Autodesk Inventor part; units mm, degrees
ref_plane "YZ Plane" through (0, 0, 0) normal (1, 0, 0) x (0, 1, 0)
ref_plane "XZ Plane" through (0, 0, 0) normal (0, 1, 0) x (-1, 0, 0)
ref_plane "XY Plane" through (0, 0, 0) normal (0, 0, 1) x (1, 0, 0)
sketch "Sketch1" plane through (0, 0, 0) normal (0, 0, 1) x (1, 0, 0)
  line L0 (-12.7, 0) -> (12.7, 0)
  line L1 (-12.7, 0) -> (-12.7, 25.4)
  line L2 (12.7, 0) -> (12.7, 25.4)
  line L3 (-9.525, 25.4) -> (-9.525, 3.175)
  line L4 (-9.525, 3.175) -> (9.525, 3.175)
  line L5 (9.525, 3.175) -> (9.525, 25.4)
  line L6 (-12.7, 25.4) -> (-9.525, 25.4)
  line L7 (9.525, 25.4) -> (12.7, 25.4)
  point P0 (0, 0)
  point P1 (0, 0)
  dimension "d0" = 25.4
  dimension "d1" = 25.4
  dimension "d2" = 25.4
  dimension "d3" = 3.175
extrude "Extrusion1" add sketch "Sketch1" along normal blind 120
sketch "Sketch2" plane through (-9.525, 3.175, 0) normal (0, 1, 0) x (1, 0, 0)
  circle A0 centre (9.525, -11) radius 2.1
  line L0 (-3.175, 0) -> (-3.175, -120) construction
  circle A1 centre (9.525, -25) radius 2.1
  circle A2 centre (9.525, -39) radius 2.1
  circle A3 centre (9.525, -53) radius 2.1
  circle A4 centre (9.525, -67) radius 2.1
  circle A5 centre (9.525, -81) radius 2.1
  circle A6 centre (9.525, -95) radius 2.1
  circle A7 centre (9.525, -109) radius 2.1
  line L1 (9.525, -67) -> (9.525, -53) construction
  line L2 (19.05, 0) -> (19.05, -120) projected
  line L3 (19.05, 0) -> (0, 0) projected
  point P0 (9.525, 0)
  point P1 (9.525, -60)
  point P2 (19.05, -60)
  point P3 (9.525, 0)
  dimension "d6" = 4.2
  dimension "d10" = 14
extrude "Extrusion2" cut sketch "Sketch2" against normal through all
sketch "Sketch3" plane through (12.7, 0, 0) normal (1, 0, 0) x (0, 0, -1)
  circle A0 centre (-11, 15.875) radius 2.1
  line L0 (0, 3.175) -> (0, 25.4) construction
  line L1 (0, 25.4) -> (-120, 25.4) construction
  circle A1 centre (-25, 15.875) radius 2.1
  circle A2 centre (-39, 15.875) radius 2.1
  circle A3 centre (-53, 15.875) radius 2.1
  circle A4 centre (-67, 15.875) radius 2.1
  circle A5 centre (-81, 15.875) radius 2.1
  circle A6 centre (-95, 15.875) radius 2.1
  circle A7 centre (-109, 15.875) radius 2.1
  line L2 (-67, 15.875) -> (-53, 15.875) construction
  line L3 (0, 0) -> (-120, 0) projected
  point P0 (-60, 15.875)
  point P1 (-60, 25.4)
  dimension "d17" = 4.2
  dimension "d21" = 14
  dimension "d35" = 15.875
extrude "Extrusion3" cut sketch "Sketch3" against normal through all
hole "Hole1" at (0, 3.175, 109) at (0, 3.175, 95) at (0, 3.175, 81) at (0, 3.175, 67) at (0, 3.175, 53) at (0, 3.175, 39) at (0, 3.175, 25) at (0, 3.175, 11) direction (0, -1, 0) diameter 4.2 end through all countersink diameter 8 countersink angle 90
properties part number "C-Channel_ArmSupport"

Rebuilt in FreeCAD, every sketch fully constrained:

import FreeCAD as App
import Part
import Sketcher
from FreeCAD import Vector
Q = App.Units.Quantity


def add_polygon(sketch, points):
    """Adds a closed chain of lines whose ends are joined by coincident constraints."""
    first, n = sketch.GeometryCount, len(points)
    for a, b in zip(points, points[1:] + points[:1]):
        sketch.addGeometry(Part.LineSegment(App.Vector(*a, 0), App.Vector(*b, 0)), False)
    for i in range(n):
        sketch.addConstraint(Sketcher.Constraint("Coincident", first + i, 2, first + (i + 1) % n, 1))

doc = App.newDocument("Part")
body = doc.addObject("PartDesign::Body", "Body")

# Sketch on XY plane
sketch1 = body.newObject("Sketcher::SketchObject", "Sketch")
sketch1.AttachmentSupport = (doc.getObject("XY_Plane"), [""])
sketch1.MapMode = "FlatFace"
add_polygon(sketch1, [(-12.7, 25.4), (-12.7, 0), (12.7, 0), (12.7, 25.4), (9.5, 25.4), (9.5, 3.2), (-9.5, 3.2), (-9.5, 25.4)])  # lines 0-7
sketch1.addConstraint([
    Sketcher.Constraint("Vertical", 0),
    Sketcher.Constraint("Horizontal", 1),
    Sketcher.Constraint("Vertical", 2),
    Sketcher.Constraint("Horizontal", 3),
    Sketcher.Constraint("Vertical", 4),
    Sketcher.Constraint("Horizontal", 5),
    Sketcher.Constraint("Vertical", 6),
    Sketcher.Constraint("Horizontal", 7),
    Sketcher.Constraint("Symmetric", 0, 2, 1, 2, -1, 1),
    Sketcher.Constraint("Symmetric", 3, 2, 6, 2, -2),
    Sketcher.Constraint("Equal", 1, 0),
    Sketcher.Constraint("DistanceX", 1, 1, 1, 2, Q("1 in")),
    Sketcher.Constraint("DistanceX", 3, 2, 3, 1, Q("0.125 in")),
    Sketcher.Constraint("DistanceY", -1, 1, 4, 2, Q("0.125 in")),
])
pad1 = body.newObject("PartDesign::Pad", "Pad")
pad1.Profile = sketch1
pad1.Length = Q("4.7244094 in")

# Sketch on XZ plane
sketch2 = body.newObject("Sketcher::SketchObject", "Sketch001")
sketch2.AttachmentSupport = (doc.getObject("XZ_Plane"), [""])
sketch2.MapMode = "FlatFace"
sketch2.AttachmentOffset = App.Placement(Vector(0, 0, -0.125 * 25.4), App.Rotation())
sketch2.addGeometry([
    Part.Circle(Vector(0, 11, 0), Vector(0, 0, 1), 2.1),  # 0
    Part.Circle(Vector(0, 25, 0), Vector(0, 0, 1), 2.1),  # 1
    Part.Circle(Vector(0, 39, 0), Vector(0, 0, 1), 2.1),  # 2
    Part.Circle(Vector(0, 53, 0), Vector(0, 0, 1), 2.1),  # 3
    Part.Circle(Vector(0, 67, 0), Vector(0, 0, 1), 2.1),  # 4
    Part.Circle(Vector(0, 81, 0), Vector(0, 0, 1), 2.1),  # 5
    Part.Circle(Vector(0, 95, 0), Vector(0, 0, 1), 2.1),  # 6
    Part.Circle(Vector(0, 109, 0), Vector(0, 0, 1), 2.1),  # 7
], False)
sketch2.addConstraint([
    Sketcher.Constraint("Equal", 0, 1),
    Sketcher.Constraint("Equal", 1, 2),
    Sketcher.Constraint("Equal", 2, 3),
    Sketcher.Constraint("Equal", 3, 4),
    Sketcher.Constraint("Equal", 4, 5),
    Sketcher.Constraint("Equal", 5, 6),
    Sketcher.Constraint("Equal", 6, 7),
    Sketcher.Constraint("PointOnObject", 0, 3, -2),
    Sketcher.Constraint("PointOnObject", 1, 3, -2),
    Sketcher.Constraint("PointOnObject", 2, 3, -2),
    Sketcher.Constraint("PointOnObject", 3, 3, -2),
    Sketcher.Constraint("PointOnObject", 4, 3, -2),
    Sketcher.Constraint("PointOnObject", 5, 3, -2),
    Sketcher.Constraint("PointOnObject", 6, 3, -2),
    Sketcher.Constraint("PointOnObject", 7, 3, -2),
    Sketcher.Constraint("Diameter", 0, Q("4.2 mm")),
    Sketcher.Constraint("DistanceY", 0, 3, 1, 3, Q("14 mm")),
    Sketcher.Constraint("DistanceY", 1, 3, 2, 3, Q("14 mm")),
    Sketcher.Constraint("DistanceY", 2, 3, 3, 3, Q("14 mm")),
    Sketcher.Constraint("DistanceY", 3, 3, 4, 3, Q("14 mm")),
    Sketcher.Constraint("DistanceY", 4, 3, 5, 3, Q("14 mm")),
    Sketcher.Constraint("DistanceY", 5, 3, 6, 3, Q("14 mm")),
    Sketcher.Constraint("DistanceY", 6, 3, 7, 3, Q("14 mm")),
    Sketcher.Constraint("DistanceY", -1, 1, 4, 3, Q("2.6378 in")),
])
pocket1 = body.newObject("PartDesign::Pocket", "Pocket")
pocket1.Profile = sketch2
pocket1.Type = "ThroughAll"
pocket1.Reversed = True

# Sketch on YZ plane
sketch3 = body.newObject("Sketcher::SketchObject", "Sketch002")
sketch3.AttachmentSupport = (doc.getObject("YZ_Plane"), [""])
sketch3.MapMode = "FlatFace"
sketch3.AttachmentOffset = App.Placement(Vector(0, 0, 0.5 * 25.4), App.Rotation())
sketch3.addGeometry([
    Part.Circle(Vector(15.9, 11, 0), Vector(0, 0, 1), 2.1),  # 0
    Part.Circle(Vector(15.9, 25, 0), Vector(0, 0, 1), 2.1),  # 1
    Part.Circle(Vector(15.9, 39, 0), Vector(0, 0, 1), 2.1),  # 2
    Part.Circle(Vector(15.9, 53, 0), Vector(0, 0, 1), 2.1),  # 3
    Part.Circle(Vector(15.9, 67, 0), Vector(0, 0, 1), 2.1),  # 4
    Part.Circle(Vector(15.9, 81, 0), Vector(0, 0, 1), 2.1),  # 5
    Part.Circle(Vector(15.9, 95, 0), Vector(0, 0, 1), 2.1),  # 6
    Part.Circle(Vector(15.9, 109, 0), Vector(0, 0, 1), 2.1),  # 7
], False)
sketch3.addConstraint([
    Sketcher.Constraint("Equal", 0, 1),
    Sketcher.Constraint("Equal", 1, 2),
    Sketcher.Constraint("Equal", 2, 3),
    Sketcher.Constraint("Equal", 3, 4),
    Sketcher.Constraint("Equal", 4, 5),
    Sketcher.Constraint("Equal", 5, 6),
    Sketcher.Constraint("Equal", 6, 7),
    Sketcher.Constraint("Vertical", 0, 3, 1, 3),
    Sketcher.Constraint("Vertical", 1, 3, 2, 3),
    Sketcher.Constraint("Vertical", 2, 3, 3, 3),
    Sketcher.Constraint("Vertical", 3, 3, 4, 3),
    Sketcher.Constraint("Vertical", 4, 3, 5, 3),
    Sketcher.Constraint("Vertical", 5, 3, 6, 3),
    Sketcher.Constraint("Vertical", 6, 3, 7, 3),
    Sketcher.Constraint("Diameter", 0, Q("4.2 mm")),
    Sketcher.Constraint("DistanceX", -1, 1, 0, 3, Q("0.625 in")),
    Sketcher.Constraint("DistanceY", 0, 3, 1, 3, Q("14 mm")),
    Sketcher.Constraint("DistanceY", 1, 3, 2, 3, Q("14 mm")),
    Sketcher.Constraint("DistanceY", 2, 3, 3, 3, Q("14 mm")),
    Sketcher.Constraint("DistanceY", 3, 3, 4, 3, Q("14 mm")),
    Sketcher.Constraint("DistanceY", 4, 3, 5, 3, Q("14 mm")),
    Sketcher.Constraint("DistanceY", 5, 3, 6, 3, Q("14 mm")),
    Sketcher.Constraint("DistanceY", 6, 3, 7, 3, Q("14 mm")),
    Sketcher.Constraint("DistanceY", -1, 1, 4, 3, Q("2.6378 in")),
])
pocket2 = body.newObject("PartDesign::Pocket", "Pocket001")
pocket2.Profile = sketch3
pocket2.Type = "ThroughAll"

# Sketch on XZ plane
sketch4 = body.newObject("Sketcher::SketchObject", "Sketch003")
sketch4.AttachmentSupport = (doc.getObject("XZ_Plane"), [""])
sketch4.MapMode = "FlatFace"
sketch4.AttachmentOffset = App.Placement(Vector(0, 0, -0.125 * 25.4), App.Rotation())
sketch4.addGeometry([
    Part.Circle(Vector(0, 109, 0), Vector(0, 0, 1), 2.1),  # 0
    Part.Circle(Vector(0, 95, 0), Vector(0, 0, 1), 2.1),  # 1
    Part.Circle(Vector(0, 81, 0), Vector(0, 0, 1), 2.1),  # 2
    Part.Circle(Vector(0, 67, 0), Vector(0, 0, 1), 2.1),  # 3
    Part.Circle(Vector(0, 53, 0), Vector(0, 0, 1), 2.1),  # 4
    Part.Circle(Vector(0, 39, 0), Vector(0, 0, 1), 2.1),  # 5
    Part.Circle(Vector(0, 25, 0), Vector(0, 0, 1), 2.1),  # 6
    Part.Circle(Vector(0, 11, 0), Vector(0, 0, 1), 2.1),  # 7
], False)
sketch4.addConstraint([
    Sketcher.Constraint("Equal", 0, 1),
    Sketcher.Constraint("Equal", 1, 2),
    Sketcher.Constraint("Equal", 2, 3),
    Sketcher.Constraint("Equal", 3, 4),
    Sketcher.Constraint("Equal", 4, 5),
    Sketcher.Constraint("Equal", 5, 6),
    Sketcher.Constraint("Equal", 6, 7),
    Sketcher.Constraint("PointOnObject", 0, 3, -2),
    Sketcher.Constraint("PointOnObject", 1, 3, -2),
    Sketcher.Constraint("PointOnObject", 2, 3, -2),
    Sketcher.Constraint("PointOnObject", 3, 3, -2),
    Sketcher.Constraint("PointOnObject", 4, 3, -2),
    Sketcher.Constraint("PointOnObject", 5, 3, -2),
    Sketcher.Constraint("PointOnObject", 6, 3, -2),
    Sketcher.Constraint("PointOnObject", 7, 3, -2),
    Sketcher.Constraint("Diameter", 0, Q("4.2 mm")),
    Sketcher.Constraint("DistanceY", -1, 1, 3, 3, Q("2.6378 in")),
    Sketcher.Constraint("DistanceY", 5, 3, 0, 3, Q("2.7559 in")),
    Sketcher.Constraint("DistanceY", 6, 3, 1, 3, Q("2.7559 in")),
    Sketcher.Constraint("DistanceY", 7, 3, 2, 3, Q("2.7559 in")),
    Sketcher.Constraint("DistanceY", -1, 1, 0, 3, Q("109 mm")),
    Sketcher.Constraint("DistanceY", -1, 1, 1, 3, Q("95 mm")),
    Sketcher.Constraint("DistanceY", -1, 1, 2, 3, Q("81 mm")),
    Sketcher.Constraint("DistanceY", -1, 1, 4, 3, Q("53 mm")),
])
doc.recompute()
hole = body.newObject("PartDesign::Hole", "Hole")
hole.Profile = sketch4
hole.ThreadType = "None"
hole.Diameter = 4.2
hole.DepthType = "ThroughAll"
hole.HoleCutType = "Countersink"
hole.HoleCutDiameter = 8
hole.HoleCutCountersinkAngle = 90
hole.Reversed = True

doc.recompute()
